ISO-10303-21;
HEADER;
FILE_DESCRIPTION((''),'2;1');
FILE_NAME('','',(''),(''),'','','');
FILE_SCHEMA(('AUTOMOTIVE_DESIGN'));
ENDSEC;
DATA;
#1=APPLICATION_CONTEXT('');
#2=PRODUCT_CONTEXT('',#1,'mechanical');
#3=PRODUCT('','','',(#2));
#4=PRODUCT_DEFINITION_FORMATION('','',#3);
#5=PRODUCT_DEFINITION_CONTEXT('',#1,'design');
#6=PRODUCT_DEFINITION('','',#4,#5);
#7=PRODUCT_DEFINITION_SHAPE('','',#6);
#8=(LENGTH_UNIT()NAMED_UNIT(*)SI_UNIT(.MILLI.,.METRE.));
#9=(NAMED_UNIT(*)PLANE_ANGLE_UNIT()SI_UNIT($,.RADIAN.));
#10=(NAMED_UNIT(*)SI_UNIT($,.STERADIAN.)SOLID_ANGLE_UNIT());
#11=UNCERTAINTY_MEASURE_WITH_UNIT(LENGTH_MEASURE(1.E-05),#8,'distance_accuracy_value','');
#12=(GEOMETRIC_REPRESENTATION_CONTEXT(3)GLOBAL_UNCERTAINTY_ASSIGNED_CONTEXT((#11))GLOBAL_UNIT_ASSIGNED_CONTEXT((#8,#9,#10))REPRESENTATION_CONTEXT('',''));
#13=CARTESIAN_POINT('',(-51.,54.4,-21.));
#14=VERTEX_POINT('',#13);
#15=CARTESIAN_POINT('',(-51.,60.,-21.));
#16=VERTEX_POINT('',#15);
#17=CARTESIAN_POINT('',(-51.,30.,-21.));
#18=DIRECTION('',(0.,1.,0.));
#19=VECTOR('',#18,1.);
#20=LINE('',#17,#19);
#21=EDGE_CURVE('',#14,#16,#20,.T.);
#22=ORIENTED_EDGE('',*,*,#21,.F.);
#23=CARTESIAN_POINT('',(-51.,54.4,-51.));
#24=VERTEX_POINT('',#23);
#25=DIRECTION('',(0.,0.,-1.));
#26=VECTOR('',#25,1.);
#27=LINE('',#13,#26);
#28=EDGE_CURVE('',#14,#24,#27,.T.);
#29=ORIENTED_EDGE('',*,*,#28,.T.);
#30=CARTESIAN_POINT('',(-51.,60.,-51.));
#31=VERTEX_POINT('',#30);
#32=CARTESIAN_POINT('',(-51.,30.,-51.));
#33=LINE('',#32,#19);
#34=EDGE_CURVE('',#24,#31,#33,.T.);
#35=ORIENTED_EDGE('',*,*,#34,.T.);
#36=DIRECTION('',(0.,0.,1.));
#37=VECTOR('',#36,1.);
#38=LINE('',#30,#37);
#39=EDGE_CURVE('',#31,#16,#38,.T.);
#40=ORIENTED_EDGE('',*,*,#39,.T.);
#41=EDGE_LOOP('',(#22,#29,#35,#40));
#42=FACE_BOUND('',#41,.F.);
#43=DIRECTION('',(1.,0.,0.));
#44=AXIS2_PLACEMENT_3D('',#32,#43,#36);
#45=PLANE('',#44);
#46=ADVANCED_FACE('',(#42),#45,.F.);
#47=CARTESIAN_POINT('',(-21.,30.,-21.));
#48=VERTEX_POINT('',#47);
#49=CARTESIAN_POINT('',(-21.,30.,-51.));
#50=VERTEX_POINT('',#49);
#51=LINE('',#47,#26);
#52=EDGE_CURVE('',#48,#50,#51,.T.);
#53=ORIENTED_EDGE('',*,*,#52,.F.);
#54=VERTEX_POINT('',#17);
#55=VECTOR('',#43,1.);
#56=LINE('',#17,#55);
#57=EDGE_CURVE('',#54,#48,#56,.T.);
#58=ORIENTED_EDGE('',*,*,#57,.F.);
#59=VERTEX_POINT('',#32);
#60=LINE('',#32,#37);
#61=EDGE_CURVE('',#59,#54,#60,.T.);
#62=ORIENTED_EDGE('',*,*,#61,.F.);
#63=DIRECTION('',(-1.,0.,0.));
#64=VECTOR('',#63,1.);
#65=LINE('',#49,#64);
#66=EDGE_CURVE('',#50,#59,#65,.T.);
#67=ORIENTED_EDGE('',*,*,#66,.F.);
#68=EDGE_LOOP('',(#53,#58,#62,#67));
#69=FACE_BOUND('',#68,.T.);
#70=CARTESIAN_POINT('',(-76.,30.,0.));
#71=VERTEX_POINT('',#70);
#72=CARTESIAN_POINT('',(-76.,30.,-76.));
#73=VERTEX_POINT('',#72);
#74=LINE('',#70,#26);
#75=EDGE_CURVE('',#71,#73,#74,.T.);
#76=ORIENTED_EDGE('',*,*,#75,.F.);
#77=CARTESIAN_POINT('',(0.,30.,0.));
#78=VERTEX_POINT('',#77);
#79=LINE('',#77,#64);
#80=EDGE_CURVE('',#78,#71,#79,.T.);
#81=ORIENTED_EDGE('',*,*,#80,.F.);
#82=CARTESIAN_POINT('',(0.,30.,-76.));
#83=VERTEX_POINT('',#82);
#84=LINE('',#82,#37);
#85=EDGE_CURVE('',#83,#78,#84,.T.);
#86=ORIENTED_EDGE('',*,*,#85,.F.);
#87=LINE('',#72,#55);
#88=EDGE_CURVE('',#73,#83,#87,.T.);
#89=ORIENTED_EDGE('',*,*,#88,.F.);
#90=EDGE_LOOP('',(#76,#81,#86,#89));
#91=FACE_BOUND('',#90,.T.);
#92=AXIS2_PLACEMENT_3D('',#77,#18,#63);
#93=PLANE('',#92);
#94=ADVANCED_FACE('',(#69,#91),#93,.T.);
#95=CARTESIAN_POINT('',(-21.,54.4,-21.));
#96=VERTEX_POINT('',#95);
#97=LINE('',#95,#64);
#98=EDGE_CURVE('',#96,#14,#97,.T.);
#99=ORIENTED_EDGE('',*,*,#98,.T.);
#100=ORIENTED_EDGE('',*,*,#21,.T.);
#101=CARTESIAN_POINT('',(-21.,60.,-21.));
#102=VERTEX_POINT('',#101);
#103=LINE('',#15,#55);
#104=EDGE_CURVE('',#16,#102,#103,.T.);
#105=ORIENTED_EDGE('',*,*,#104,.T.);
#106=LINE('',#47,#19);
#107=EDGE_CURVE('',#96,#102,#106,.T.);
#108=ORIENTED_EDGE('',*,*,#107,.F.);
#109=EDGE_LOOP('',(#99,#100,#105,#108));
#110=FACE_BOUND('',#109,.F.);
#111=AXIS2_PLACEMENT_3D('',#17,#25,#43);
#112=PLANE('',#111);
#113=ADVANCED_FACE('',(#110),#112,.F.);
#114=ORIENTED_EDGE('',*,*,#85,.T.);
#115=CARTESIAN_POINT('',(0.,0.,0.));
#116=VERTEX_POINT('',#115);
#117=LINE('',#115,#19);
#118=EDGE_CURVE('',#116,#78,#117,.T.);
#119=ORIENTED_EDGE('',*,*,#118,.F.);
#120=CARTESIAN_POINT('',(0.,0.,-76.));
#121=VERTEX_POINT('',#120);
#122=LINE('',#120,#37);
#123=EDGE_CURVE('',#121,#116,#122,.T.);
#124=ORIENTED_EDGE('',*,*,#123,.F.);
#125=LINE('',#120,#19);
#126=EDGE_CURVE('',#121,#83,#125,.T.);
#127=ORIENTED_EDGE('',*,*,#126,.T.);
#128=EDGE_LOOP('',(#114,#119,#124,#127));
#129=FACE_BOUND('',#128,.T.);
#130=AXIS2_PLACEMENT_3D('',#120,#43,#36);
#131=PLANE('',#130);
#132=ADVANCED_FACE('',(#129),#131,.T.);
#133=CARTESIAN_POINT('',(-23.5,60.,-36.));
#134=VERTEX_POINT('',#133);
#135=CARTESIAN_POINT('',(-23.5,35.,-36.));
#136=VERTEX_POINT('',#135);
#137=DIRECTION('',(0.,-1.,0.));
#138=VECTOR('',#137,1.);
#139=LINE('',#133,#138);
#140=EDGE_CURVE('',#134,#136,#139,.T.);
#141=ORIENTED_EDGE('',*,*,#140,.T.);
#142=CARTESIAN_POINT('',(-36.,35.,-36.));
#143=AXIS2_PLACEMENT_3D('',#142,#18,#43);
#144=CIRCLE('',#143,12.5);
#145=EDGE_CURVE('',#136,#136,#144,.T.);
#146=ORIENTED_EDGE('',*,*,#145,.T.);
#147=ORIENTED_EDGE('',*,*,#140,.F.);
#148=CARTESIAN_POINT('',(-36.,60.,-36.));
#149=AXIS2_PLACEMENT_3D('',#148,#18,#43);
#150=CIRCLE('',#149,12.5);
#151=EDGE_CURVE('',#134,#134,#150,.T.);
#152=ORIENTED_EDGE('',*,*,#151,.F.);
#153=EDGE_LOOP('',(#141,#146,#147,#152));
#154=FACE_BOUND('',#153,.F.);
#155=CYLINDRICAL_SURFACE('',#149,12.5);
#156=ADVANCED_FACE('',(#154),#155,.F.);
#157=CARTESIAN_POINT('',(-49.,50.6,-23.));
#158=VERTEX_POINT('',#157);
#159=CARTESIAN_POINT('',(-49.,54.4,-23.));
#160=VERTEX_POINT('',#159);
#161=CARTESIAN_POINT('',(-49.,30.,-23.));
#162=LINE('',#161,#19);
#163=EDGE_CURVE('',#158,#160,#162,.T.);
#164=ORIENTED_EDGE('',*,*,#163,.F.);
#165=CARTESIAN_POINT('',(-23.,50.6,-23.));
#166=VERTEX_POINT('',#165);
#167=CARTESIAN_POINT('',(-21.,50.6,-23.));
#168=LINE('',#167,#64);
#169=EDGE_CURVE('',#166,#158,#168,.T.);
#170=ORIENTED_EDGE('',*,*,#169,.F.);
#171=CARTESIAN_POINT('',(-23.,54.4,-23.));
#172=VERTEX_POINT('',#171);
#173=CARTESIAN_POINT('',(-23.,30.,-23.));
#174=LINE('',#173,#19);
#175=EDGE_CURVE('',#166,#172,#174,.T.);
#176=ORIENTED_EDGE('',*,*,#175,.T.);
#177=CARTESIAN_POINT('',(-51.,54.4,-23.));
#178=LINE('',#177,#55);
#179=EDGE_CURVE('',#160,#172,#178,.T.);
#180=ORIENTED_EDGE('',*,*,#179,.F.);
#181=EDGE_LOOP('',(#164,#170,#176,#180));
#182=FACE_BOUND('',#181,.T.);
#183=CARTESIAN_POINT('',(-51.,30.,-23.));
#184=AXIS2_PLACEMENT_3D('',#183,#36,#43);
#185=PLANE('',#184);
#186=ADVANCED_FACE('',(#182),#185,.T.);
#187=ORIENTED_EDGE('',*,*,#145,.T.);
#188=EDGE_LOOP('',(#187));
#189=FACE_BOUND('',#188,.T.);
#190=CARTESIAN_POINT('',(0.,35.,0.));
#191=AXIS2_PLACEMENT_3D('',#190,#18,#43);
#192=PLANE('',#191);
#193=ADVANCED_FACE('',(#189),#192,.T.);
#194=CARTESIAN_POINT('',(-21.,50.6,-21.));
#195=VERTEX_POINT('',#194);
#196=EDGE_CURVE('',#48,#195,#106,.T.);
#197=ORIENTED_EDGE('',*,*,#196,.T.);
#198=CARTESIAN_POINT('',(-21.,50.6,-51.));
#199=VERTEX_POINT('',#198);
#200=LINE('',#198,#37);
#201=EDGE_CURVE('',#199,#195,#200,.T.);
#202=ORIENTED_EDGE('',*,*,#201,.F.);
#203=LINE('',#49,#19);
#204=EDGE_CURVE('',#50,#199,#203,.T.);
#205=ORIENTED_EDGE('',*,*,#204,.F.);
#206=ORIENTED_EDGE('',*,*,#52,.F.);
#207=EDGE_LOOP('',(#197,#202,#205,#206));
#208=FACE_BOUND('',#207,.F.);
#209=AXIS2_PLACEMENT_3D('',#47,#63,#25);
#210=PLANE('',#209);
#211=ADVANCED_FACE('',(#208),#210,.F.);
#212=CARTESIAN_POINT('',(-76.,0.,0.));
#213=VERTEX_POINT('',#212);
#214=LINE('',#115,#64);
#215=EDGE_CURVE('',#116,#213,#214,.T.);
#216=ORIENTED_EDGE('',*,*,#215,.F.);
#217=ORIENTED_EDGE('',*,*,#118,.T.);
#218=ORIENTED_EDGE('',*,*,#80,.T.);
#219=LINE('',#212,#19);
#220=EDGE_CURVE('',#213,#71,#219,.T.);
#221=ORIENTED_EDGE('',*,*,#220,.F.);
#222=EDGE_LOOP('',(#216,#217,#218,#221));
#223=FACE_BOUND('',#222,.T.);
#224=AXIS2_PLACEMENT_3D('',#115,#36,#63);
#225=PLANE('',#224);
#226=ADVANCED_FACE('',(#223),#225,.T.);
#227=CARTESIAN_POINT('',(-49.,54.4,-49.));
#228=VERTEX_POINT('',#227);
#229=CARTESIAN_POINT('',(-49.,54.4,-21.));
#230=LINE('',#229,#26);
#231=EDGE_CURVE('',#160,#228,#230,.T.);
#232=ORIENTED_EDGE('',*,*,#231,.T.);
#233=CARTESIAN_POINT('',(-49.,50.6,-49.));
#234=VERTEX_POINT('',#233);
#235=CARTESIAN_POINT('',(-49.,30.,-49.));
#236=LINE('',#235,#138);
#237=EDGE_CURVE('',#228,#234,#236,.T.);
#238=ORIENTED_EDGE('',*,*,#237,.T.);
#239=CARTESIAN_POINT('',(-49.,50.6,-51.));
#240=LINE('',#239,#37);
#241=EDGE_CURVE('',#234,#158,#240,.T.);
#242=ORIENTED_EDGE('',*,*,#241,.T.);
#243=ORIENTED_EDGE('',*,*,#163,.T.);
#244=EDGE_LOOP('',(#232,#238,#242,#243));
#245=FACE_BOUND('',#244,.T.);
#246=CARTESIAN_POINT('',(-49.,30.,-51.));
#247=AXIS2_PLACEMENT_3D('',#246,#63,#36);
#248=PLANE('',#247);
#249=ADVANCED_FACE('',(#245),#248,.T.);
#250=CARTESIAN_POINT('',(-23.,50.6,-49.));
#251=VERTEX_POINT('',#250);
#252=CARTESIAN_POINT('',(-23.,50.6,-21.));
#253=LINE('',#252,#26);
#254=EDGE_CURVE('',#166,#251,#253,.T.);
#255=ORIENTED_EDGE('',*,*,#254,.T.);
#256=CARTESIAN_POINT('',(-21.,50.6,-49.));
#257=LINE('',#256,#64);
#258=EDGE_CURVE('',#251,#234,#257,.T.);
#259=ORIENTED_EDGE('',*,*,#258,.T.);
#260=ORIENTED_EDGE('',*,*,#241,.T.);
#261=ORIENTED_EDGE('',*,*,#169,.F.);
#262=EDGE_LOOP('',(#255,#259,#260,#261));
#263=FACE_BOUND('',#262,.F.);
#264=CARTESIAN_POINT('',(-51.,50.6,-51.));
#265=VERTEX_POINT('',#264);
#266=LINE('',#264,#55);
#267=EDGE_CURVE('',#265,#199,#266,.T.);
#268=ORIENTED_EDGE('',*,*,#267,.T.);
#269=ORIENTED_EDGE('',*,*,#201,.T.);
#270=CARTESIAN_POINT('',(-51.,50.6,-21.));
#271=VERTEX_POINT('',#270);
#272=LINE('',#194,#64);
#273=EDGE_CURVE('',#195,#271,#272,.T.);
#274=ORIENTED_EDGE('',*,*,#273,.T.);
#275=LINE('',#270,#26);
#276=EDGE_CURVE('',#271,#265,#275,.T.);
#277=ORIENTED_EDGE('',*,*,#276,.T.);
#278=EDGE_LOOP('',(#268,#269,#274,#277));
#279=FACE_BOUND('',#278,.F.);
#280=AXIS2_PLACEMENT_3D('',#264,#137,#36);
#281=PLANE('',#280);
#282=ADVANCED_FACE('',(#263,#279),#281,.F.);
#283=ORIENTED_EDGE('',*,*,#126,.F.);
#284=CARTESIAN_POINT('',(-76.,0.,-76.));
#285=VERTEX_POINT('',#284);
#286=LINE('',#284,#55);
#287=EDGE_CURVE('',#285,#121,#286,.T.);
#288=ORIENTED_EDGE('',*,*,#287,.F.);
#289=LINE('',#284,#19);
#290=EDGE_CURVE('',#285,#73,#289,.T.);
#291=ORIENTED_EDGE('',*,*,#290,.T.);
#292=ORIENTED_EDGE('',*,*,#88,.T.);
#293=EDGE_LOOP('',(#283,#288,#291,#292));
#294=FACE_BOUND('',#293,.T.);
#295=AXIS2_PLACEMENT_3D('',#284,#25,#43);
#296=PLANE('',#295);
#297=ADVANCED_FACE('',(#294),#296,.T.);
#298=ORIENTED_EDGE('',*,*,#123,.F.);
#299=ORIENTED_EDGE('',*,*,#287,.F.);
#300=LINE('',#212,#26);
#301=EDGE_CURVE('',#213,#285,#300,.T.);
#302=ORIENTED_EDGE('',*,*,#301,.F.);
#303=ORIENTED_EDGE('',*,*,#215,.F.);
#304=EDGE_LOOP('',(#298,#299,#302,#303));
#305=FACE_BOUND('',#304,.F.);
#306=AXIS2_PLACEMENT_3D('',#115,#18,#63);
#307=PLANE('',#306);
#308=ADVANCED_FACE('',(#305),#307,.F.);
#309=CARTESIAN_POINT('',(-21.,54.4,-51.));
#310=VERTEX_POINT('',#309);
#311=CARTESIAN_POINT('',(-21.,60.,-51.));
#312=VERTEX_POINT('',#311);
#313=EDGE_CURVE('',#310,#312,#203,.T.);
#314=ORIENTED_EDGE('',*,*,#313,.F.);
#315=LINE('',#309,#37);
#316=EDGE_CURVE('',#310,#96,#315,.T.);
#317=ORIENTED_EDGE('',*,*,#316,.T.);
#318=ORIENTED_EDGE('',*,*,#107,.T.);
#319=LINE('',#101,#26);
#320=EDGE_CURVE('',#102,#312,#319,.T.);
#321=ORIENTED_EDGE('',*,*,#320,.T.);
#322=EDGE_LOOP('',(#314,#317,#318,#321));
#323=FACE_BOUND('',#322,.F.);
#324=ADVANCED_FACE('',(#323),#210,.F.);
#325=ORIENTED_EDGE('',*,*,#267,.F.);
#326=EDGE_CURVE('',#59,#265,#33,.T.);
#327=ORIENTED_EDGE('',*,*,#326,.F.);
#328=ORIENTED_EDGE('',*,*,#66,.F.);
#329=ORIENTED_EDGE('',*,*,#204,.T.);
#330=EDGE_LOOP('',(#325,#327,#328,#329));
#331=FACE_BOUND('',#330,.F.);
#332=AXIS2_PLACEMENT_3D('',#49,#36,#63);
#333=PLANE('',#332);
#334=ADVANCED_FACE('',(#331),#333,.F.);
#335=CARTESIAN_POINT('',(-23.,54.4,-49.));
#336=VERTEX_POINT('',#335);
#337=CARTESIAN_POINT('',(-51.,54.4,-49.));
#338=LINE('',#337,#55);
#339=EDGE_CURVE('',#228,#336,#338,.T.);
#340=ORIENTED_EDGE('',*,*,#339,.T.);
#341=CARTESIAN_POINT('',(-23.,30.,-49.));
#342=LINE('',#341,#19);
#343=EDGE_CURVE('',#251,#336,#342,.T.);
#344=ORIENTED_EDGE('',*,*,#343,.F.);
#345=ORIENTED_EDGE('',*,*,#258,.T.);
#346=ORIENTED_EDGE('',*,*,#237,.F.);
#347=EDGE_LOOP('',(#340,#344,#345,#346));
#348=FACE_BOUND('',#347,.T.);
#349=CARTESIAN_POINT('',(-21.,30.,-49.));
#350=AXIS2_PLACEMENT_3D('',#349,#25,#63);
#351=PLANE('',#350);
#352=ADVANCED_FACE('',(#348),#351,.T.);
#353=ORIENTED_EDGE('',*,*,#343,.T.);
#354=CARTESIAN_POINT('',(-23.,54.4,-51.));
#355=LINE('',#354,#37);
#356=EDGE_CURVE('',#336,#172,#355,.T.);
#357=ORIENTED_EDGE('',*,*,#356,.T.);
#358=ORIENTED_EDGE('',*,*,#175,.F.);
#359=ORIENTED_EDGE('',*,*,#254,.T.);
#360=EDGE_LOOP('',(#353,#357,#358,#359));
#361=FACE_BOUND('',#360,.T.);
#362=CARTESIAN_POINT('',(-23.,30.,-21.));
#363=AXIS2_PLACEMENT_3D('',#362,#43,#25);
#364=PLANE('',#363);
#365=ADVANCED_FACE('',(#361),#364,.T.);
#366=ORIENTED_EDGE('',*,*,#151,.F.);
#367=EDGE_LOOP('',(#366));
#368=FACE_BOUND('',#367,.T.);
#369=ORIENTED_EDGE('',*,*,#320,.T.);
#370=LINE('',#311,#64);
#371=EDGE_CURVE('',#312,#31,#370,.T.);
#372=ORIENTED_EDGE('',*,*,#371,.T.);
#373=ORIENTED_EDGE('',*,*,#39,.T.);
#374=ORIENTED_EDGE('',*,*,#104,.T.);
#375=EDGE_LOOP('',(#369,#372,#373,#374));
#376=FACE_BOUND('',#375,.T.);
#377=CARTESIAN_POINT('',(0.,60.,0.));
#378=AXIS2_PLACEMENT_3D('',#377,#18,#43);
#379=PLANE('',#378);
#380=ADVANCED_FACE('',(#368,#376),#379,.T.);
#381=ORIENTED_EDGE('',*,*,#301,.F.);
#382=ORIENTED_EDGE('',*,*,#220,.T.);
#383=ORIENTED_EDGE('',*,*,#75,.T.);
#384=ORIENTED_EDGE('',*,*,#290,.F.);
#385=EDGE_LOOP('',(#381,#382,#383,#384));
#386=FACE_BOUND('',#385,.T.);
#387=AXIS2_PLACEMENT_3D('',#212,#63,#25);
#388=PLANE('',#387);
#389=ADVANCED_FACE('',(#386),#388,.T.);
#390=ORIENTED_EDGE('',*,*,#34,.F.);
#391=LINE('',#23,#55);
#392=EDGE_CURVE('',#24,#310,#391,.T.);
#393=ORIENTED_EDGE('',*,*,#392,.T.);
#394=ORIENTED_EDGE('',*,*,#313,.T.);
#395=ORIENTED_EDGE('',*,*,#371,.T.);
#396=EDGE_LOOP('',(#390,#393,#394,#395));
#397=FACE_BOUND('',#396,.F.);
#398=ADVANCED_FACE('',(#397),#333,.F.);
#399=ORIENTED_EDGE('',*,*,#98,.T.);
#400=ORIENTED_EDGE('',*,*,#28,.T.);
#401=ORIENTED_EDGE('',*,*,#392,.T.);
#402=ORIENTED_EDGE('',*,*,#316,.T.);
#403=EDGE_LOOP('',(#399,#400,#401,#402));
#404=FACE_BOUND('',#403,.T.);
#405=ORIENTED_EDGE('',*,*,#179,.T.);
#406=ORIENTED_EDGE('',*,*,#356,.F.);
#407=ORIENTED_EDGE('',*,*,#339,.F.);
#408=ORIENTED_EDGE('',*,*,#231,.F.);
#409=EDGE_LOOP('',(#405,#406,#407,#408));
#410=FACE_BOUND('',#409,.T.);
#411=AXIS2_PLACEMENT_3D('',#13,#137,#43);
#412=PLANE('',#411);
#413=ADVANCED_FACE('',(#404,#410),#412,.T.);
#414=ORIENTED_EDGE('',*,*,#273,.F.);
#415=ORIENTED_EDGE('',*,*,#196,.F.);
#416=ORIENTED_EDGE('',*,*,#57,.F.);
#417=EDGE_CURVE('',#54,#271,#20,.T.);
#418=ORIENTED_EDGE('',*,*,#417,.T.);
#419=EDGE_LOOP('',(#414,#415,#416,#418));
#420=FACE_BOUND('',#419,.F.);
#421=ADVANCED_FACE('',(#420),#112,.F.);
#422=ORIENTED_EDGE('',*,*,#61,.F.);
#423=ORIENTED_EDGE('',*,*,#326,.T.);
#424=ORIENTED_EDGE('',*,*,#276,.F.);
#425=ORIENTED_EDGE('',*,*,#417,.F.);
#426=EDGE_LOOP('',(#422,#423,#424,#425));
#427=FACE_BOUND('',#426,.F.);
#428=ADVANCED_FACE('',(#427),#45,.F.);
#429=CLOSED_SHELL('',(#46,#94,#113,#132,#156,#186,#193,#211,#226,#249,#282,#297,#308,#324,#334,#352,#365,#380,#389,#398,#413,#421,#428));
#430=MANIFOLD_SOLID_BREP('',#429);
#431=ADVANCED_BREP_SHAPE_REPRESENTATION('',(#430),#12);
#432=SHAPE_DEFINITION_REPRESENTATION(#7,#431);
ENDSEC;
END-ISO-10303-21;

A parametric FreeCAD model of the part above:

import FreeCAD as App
import Part
import Sketcher
Q = App.Units.Quantity


def add_polygon(sketch, points):
    """Adds a closed chain of lines whose ends are joined by coincident constraints."""
    first, n = sketch.GeometryCount, len(points)
    for a, b in zip(points, points[1:] + points[:1]):
        sketch.addGeometry(Part.LineSegment(App.Vector(*a, 0), App.Vector(*b, 0)), False)
    for i in range(n):
        sketch.addConstraint(Sketcher.Constraint("Coincident", first + i, 2, first + (i + 1) % n, 1))

doc = App.newDocument("Part")
body = doc.addObject("PartDesign::Body", "Body")

# Sketch on XZ plane
sketch1 = body.newObject("Sketcher::SketchObject", "Sketch")
sketch1.AttachmentSupport = (doc.getObject("XZ_Plane"), [""])
sketch1.MapMode = "FlatFace"
add_polygon(sketch1, [(-76, 0), (0, 0), (0, -76), (-76, -76)])  # lines 0-3
sketch1.addConstraint(Sketcher.Constraint("Horizontal", 0))
sketch1.addConstraint(Sketcher.Constraint("Vertical", 1))
sketch1.addConstraint(Sketcher.Constraint("Horizontal", 2))
sketch1.addConstraint(Sketcher.Constraint("Vertical", 3))
sketch1.addConstraint(Sketcher.Constraint("Coincident", 0, 2, -1, 1))
sketch1.addConstraint(Sketcher.Constraint("Equal", 2, 1))
sketch1.addConstraint(Sketcher.Constraint("DistanceX", 0, 1, 0, 2, Q("76 mm")))
pad1 = body.newObject("PartDesign::Pad", "Pad")
pad1.Profile = sketch1
pad1.Length = 30
pad1.Reversed = True

# Sketch on XZ plane
sketch2 = body.newObject("Sketcher::SketchObject", "Sketch001")
sketch2.AttachmentSupport = (doc.getObject("XZ_Plane"), [""])
sketch2.MapMode = "FlatFace"
sketch2.AttachmentOffset = App.Placement(App.Vector(0, 0, -30), App.Rotation())
add_polygon(sketch2, [(-51, -51), (-51, -21), (-21, -21), (-21, -51)])  # lines 0-3
sketch2.addConstraint(Sketcher.Constraint("Vertical", 0))
sketch2.addConstraint(Sketcher.Constraint("Horizontal", 1))
sketch2.addConstraint(Sketcher.Constraint("Vertical", 2))
sketch2.addConstraint(Sketcher.Constraint("Horizontal", 3))
sketch2.addConstraint(Sketcher.Constraint("Equal", 3, 0))
sketch2.addConstraint(Sketcher.Constraint("DistanceX", 1, 1, 1, 2, Q("30 mm")))
sketch2.addConstraint(Sketcher.Constraint("DistanceX", 0, 2, -1, 1, Q("51 mm")))
sketch2.addConstraint(Sketcher.Constraint("DistanceY", 0, 2, -1, 1, Q("21 mm")))
pad2 = body.newObject("PartDesign::Pad", "Pad001")
pad2.Profile = sketch2
pad2.Length = 30
pad2.Reversed = True

# Sketch on YZ plane
sketch3 = body.newObject("Sketcher::SketchObject", "Sketch002")
sketch3.AttachmentSupport = (doc.getObject("YZ_Plane"), [""])
sketch3.MapMode = "FlatFace"
sketch3.AttachmentOffset = App.Placement(App.Vector(0, 0, -51), App.Rotation())
add_polygon(sketch3, [(50.6, -51), (50.6, -21), (54.4, -21), (54.4, -51)])  # lines 0-3
sketch3.addConstraint(Sketcher.Constraint("Vertical", 0))
sketch3.addConstraint(Sketcher.Constraint("Horizontal", 1))
sketch3.addConstraint(Sketcher.Constraint("Vertical", 2))
sketch3.addConstraint(Sketcher.Constraint("Horizontal", 3))
sketch3.addConstraint(Sketcher.Constraint("DistanceX", 1, 1, 1, 2, Q("3.8 mm")))
sketch3.addConstraint(Sketcher.Constraint("DistanceY", 0, 1, 0, 2, Q("30 mm")))
sketch3.addConstraint(Sketcher.Constraint("DistanceY", 0, 2, -1, 1, Q("21 mm")))
sketch3.addConstraint(Sketcher.Constraint("DistanceX", -1, 1, 0, 2, Q("50.6 mm")))
pocket1 = body.newObject("PartDesign::Pocket", "Pocket")
pocket1.Profile = sketch3
pocket1.Length = 2
pocket1.Reversed = True

# Sketch on XY plane
sketch4 = body.newObject("Sketcher::SketchObject", "Sketch003")
sketch4.AttachmentSupport = (doc.getObject("XY_Plane"), [""])
sketch4.MapMode = "FlatFace"
sketch4.AttachmentOffset = App.Placement(App.Vector(0, 0, -21), App.Rotation())
add_polygon(sketch4, [(-51, 50.6), (-21, 50.6), (-21, 54.4), (-51, 54.4)])  # lines 0-3
sketch4.addConstraint(Sketcher.Constraint("Horizontal", 0))
sketch4.addConstraint(Sketcher.Constraint("Vertical", 1))
sketch4.addConstraint(Sketcher.Constraint("Horizontal", 2))
sketch4.addConstraint(Sketcher.Constraint("Vertical", 3))
sketch4.addConstraint(Sketcher.Constraint("DistanceY", 1, 1, 1, 2, Q("3.8 mm")))
sketch4.addConstraint(Sketcher.Constraint("DistanceX", 0, 1, 0, 2, Q("30 mm")))
sketch4.addConstraint(Sketcher.Constraint("DistanceX", 0, 2, -1, 1, Q("21 mm")))
sketch4.addConstraint(Sketcher.Constraint("DistanceY", -1, 1, 0, 2, Q("50.6 mm")))
pocket2 = body.newObject("PartDesign::Pocket", "Pocket001")
pocket2.Profile = sketch4
pocket2.Length = 2

# Sketch on YZ plane
sketch5 = body.newObject("Sketcher::SketchObject", "Sketch004")
sketch5.AttachmentSupport = (doc.getObject("YZ_Plane"), [""])
sketch5.MapMode = "FlatFace"
sketch5.AttachmentOffset = App.Placement(App.Vector(0, 0, -21), App.Rotation())
add_polygon(sketch5, [(50.6, -21), (50.6, -51), (54.4, -51), (54.4, -21)])  # lines 0-3
sketch5.addConstraint(Sketcher.Constraint("Vertical", 0))
sketch5.addConstraint(Sketcher.Constraint("Horizontal", 1))
sketch5.addConstraint(Sketcher.Constraint("Vertical", 2))
sketch5.addConstraint(Sketcher.Constraint("Horizontal", 3))
sketch5.addConstraint(Sketcher.Constraint("DistanceX", 1, 1, 1, 2, Q("3.8 mm")))
sketch5.addConstraint(Sketcher.Constraint("DistanceY", 0, 2, 0, 1, Q("30 mm")))
sketch5.addConstraint(Sketcher.Constraint("DistanceY", 0, 2, -1, 1, Q("51 mm")))
sketch5.addConstraint(Sketcher.Constraint("DistanceX", -1, 1, 0, 2, Q("50.6 mm")))
pocket3 = body.newObject("PartDesign::Pocket", "Pocket002")
pocket3.Profile = sketch5
pocket3.Length = 2

# Sketch on XY plane
sketch6 = body.newObject("Sketcher::SketchObject", "Sketch005")
sketch6.AttachmentSupport = (doc.getObject("XY_Plane"), [""])
sketch6.MapMode = "FlatFace"
sketch6.AttachmentOffset = App.Placement(App.Vector(0, 0, -51), App.Rotation())
add_polygon(sketch6, [(-21, 50.6), (-51, 50.6), (-51, 54.4), (-21, 54.4)])  # lines 0-3
sketch6.addConstraint(Sketcher.Constraint("Horizontal", 0))
sketch6.addConstraint(Sketcher.Constraint("Vertical", 1))
sketch6.addConstraint(Sketcher.Constraint("Horizontal", 2))
sketch6.addConstraint(Sketcher.Constraint("Vertical", 3))
sketch6.addConstraint(Sketcher.Constraint("DistanceY", 1, 1, 1, 2, Q("3.8 mm")))
sketch6.addConstraint(Sketcher.Constraint("DistanceX", 0, 2, 0, 1, Q("30 mm")))
sketch6.addConstraint(Sketcher.Constraint("DistanceX", 0, 2, -1, 1, Q("51 mm")))
sketch6.addConstraint(Sketcher.Constraint("DistanceY", -1, 1, 0, 2, Q("50.6 mm")))
pocket4 = body.newObject("PartDesign::Pocket", "Pocket003")
pocket4.Profile = sketch6
pocket4.Length = 2
pocket4.Reversed = True

# Sketch on XZ plane
sketch7 = body.newObject("Sketcher::SketchObject", "Sketch006")
sketch7.AttachmentSupport = (doc.getObject("XZ_Plane"), [""])
sketch7.MapMode = "FlatFace"
sketch7.AttachmentOffset = App.Placement(App.Vector(0, 0, -60), App.Rotation())
sketch7.addGeometry(Part.Circle(App.Vector(-36, -36, 0), App.Vector(0, 0, 1), 12), False)
sketch7.addConstraint(Sketcher.Constraint("Diameter", 0, Q("25 mm")))
sketch7.addConstraint(Sketcher.Constraint("DistanceX", 0, 3, -1, 1, Q("36 mm")))
sketch7.addConstraint(Sketcher.Constraint("DistanceY", 0, 3, -1, 1, Q("36 mm")))
pocket5 = body.newObject("PartDesign::Pocket", "Pocket004")
pocket5.Profile = sketch7
pocket5.Length = 25
pocket5.Reversed = True

doc.recompute()
